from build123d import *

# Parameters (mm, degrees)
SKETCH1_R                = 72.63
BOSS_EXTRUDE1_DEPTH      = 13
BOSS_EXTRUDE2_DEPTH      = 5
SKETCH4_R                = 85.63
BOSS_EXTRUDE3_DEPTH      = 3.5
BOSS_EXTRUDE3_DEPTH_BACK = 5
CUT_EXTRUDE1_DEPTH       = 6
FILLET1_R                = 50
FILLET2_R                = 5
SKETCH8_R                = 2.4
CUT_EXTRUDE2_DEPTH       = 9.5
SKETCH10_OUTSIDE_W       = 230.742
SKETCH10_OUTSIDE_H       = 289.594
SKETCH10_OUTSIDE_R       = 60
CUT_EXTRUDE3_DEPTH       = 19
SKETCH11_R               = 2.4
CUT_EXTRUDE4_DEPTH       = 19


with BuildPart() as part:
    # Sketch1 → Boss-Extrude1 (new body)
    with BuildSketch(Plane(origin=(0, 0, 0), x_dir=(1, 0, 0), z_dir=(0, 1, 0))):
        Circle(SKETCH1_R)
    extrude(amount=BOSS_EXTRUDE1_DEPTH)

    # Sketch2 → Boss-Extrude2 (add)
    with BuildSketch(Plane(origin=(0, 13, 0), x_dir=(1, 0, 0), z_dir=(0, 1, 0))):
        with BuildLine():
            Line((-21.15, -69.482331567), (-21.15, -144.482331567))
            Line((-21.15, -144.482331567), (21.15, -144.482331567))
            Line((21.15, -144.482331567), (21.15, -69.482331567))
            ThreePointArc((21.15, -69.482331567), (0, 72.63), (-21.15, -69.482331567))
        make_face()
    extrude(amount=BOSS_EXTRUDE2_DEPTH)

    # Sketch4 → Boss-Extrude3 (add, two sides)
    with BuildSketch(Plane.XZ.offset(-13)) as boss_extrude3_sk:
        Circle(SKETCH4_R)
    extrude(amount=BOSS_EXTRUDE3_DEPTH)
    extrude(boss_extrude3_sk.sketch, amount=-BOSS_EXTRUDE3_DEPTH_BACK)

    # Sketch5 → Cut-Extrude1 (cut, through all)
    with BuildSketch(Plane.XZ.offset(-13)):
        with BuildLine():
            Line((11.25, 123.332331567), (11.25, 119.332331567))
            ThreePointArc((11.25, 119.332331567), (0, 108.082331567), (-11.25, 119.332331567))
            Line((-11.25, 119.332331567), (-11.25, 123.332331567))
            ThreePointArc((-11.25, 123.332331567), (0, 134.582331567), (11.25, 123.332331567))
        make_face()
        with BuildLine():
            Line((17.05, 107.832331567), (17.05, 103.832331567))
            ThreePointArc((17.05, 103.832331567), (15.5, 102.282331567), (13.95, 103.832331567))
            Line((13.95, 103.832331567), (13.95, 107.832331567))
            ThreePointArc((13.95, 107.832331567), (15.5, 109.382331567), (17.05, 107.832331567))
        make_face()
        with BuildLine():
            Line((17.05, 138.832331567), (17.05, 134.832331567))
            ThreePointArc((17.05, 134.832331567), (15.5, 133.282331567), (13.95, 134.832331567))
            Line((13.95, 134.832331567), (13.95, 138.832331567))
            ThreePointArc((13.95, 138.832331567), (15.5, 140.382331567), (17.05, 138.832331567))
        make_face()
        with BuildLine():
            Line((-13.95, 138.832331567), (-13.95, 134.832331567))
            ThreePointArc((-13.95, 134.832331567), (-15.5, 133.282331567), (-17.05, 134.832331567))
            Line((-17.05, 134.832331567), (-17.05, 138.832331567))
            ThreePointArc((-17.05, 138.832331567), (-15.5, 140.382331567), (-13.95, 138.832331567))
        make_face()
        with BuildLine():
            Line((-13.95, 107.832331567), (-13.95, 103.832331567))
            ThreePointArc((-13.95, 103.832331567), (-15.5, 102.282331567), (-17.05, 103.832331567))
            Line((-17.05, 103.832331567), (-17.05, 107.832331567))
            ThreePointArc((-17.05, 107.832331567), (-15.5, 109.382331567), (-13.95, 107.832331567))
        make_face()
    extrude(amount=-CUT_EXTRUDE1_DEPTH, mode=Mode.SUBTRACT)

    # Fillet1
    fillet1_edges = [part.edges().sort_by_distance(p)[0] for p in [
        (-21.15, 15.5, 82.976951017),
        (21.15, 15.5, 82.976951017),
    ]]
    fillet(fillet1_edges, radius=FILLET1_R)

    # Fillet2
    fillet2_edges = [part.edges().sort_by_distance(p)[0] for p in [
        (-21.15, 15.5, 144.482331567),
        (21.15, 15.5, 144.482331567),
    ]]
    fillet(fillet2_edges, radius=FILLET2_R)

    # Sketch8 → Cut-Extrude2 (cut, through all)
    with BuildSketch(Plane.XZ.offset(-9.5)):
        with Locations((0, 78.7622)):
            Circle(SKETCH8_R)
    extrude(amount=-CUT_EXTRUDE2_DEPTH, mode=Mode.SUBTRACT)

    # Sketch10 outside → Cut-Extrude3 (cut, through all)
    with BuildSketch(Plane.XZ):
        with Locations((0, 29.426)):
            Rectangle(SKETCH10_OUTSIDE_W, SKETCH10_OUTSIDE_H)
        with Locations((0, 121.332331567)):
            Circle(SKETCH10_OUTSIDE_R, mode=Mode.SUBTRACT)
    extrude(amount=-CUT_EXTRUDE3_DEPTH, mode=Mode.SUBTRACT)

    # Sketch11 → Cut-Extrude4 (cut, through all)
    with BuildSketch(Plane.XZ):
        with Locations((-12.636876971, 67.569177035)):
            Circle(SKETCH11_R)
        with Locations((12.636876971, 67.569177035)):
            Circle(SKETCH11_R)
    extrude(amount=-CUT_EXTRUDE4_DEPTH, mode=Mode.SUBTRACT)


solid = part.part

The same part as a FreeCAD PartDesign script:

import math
import FreeCAD as App
import Part
import Sketcher


def edges_at(feature, points):
    """Names of the edges that pass closest to the given points."""
    edges = feature.Shape.Edges
    near = lambda p: min(range(len(edges)), key=lambda i: edges[i].distToShape(Part.Vertex(*p))[0])
    return sorted({f"Edge{near(p) + 1}" for p in points})

doc = App.newDocument("Part")
params = doc.addObject("Spreadsheet::Sheet", "Params")
for row, (alias, value) in enumerate([
    ("sketch1_diameter", "145.26 mm"),
    ("pad1_length", "13 mm"),
    ("sketch2_height", "75 mm"),
    ("sketch2_radius", "72.63 mm"),
    ("sketch2_width", "42.3 mm"),
    ("pad2_length", "5 mm"),
    ("sketch3_diameter", "171.26 mm"),
    ("pad3_length", "3.5 mm"),
    ("pad3_length2", "5 mm"),
    ("sketch4_height", "4 mm"),
    ("sketch4_radius", "11.25 mm"),
    ("sketch4_radius2", "1.55 mm"),
    ("fillet_radius", "50 mm"),
    ("fillet2_radius", "5 mm"),
    ("sketch5_diameter", "4.8 mm"),
    ("sketch6_radius", "60 mm"),
    ("sketch7_diameter", "4.8 mm"),
], start=1):
    params.set(f"A{row}", alias)
    params.set(f"B{row}", "=" + value)
    params.setAlias(f"B{row}", alias)

body = doc.addObject("PartDesign::Body", "Body")

sketch1 = body.newObject("Sketcher::SketchObject", "Sketch")
sketch1.AttachmentSupport = (doc.getObject("XZ_Plane"), [""])
sketch1.MapMode = "FlatFace"
sketch1.addGeometry(Part.Circle(App.Vector(0, 0, 0), App.Vector(0, 0, 1), 73), False)
sketch1.addConstraint([
    Sketcher.Constraint("Coincident", 0, 3, -1, 1),
    Sketcher.Constraint("Diameter", 0, 145.26),
])
sketch1.setExpression("Constraints[1]", "Params.sketch1_diameter")
pad1 = body.newObject("PartDesign::Pad", "Pad")
pad1.Profile = sketch1
pad1.setExpression("Length", "Params.pad1_length")
pad1.Reversed = True

sketch2 = body.newObject("Sketcher::SketchObject", "Sketch001")
sketch2.AttachmentSupport = (doc.getObject("XZ_Plane"), [""])
sketch2.MapMode = "FlatFace"
sketch2.AttachmentOffset = App.Placement(App.Vector(0, 0, -13), App.Rotation())
sketch2.addGeometry([
    Part.LineSegment(App.Vector(-21, 69, 0), App.Vector(-21, 144, 0)),
    Part.LineSegment(App.Vector(-21, 144, 0), App.Vector(21, 144, 0)),
    Part.LineSegment(App.Vector(21, 144, 0), App.Vector(21, 69, 0)),
    Part.ArcOfCircle(Part.Circle(App.Vector(0, 0, 0), App.Vector(0, 0, 1), 73), math.radians(107), math.radians(433)),
], False)
sketch2.addConstraint([
    Sketcher.Constraint("Coincident", 0, 2, 1, 1),
    Sketcher.Constraint("Coincident", 1, 2, 2, 1),
    Sketcher.Constraint("Coincident", 2, 2, 3, 2),
    Sketcher.Constraint("Coincident", 3, 1, 0, 1),
    Sketcher.Constraint("Vertical", 0),
    Sketcher.Constraint("Horizontal", 1),
    Sketcher.Constraint("Vertical", 2),
    Sketcher.Constraint("Coincident", 3, 3, -1, 1),
    Sketcher.Constraint("Horizontal", 2, 2, 3, 1),
    Sketcher.Constraint("DistanceY", 0, 1, 0, 2, 75.0),
    Sketcher.Constraint("Radius", 3, 72.63),
    Sketcher.Constraint("DistanceX", 1, 1, 1, 2, 42.3),
])
sketch2.setExpression("Constraints[9]", "Params.sketch2_height")
sketch2.setExpression("Constraints[10]", "Params.sketch2_radius")
sketch2.setExpression("Constraints[11]", "Params.sketch2_width")
pad2 = body.newObject("PartDesign::Pad", "Pad001")
pad2.Profile = sketch2
pad2.setExpression("Length", "Params.pad2_length")
pad2.Reversed = True

sketch3 = body.newObject("Sketcher::SketchObject", "Sketch002")
sketch3.AttachmentSupport = (doc.getObject("XZ_Plane"), [""])
sketch3.MapMode = "FlatFace"
sketch3.AttachmentOffset = App.Placement(App.Vector(0, 0, -13), App.Rotation())
sketch3.addGeometry(Part.Circle(App.Vector(0, 0, 0), App.Vector(0, 0, 1), 86), False)
sketch3.addConstraint([
    Sketcher.Constraint("Coincident", 0, 3, -1, 1),
    Sketcher.Constraint("Diameter", 0, 171.26),
])
sketch3.setExpression("Constraints[1]", "Params.sketch3_diameter")
pad3 = body.newObject("PartDesign::Pad", "Pad002")
pad3.Profile = sketch3
pad3.Type = "TwoLengths"
pad3.setExpression("Length", "Params.pad3_length")
pad3.setExpression("Length2", "Params.pad3_length2")

sketch4 = body.newObject("Sketcher::SketchObject", "Sketch003")
sketch4.AttachmentSupport = (doc.getObject("XZ_Plane"), [""])
sketch4.MapMode = "FlatFace"
sketch4.AttachmentOffset = App.Placement(App.Vector(0, 0, -13), App.Rotation())
sketch4.addGeometry([
    Part.LineSegment(App.Vector(11.2, 119.3, 0), App.Vector(11.2, 123.3, 0)),
    Part.ArcOfCircle(Part.Circle(App.Vector(0, 123.3, 0), App.Vector(0, 0, 1), 11.2), math.radians(0), math.radians(180)),
    Part.LineSegment(App.Vector(-11.2, 123.3, 0), App.Vector(-11.2, 119.3, 0)),
    Part.ArcOfCircle(Part.Circle(App.Vector(0, 119.3, 0), App.Vector(0, 0, 1), 11.2), math.radians(180), math.radians(360)),
    Part.LineSegment(App.Vector(17.1, 103.8, 0), App.Vector(17.1, 107.8, 0)),
    Part.ArcOfCircle(Part.Circle(App.Vector(15.5, 107.8, 0), App.Vector(0, 0, 1), 1.6), math.radians(0), math.radians(180)),
    Part.LineSegment(App.Vector(13.9, 107.8, 0), App.Vector(13.9, 103.8, 0)),
    Part.ArcOfCircle(Part.Circle(App.Vector(15.5, 103.8, 0), App.Vector(0, 0, 1), 1.6), math.radians(180), math.radians(360)),
    Part.LineSegment(App.Vector(17.1, 134.8, 0), App.Vector(17.1, 138.8, 0)),
    Part.ArcOfCircle(Part.Circle(App.Vector(15.5, 138.8, 0), App.Vector(0, 0, 1), 1.6), math.radians(0), math.radians(180)),
    Part.LineSegment(App.Vector(13.9, 138.8, 0), App.Vector(13.9, 134.8, 0)),
    Part.ArcOfCircle(Part.Circle(App.Vector(15.5, 134.8, 0), App.Vector(0, 0, 1), 1.6), math.radians(180), math.radians(360)),
    Part.LineSegment(App.Vector(-13.9, 134.8, 0), App.Vector(-13.9, 138.8, 0)),
    Part.ArcOfCircle(Part.Circle(App.Vector(-15.5, 138.8, 0), App.Vector(0, 0, 1), 1.6), math.radians(0), math.radians(180)),
    Part.LineSegment(App.Vector(-17.1, 138.8, 0), App.Vector(-17.1, 134.8, 0)),
    Part.ArcOfCircle(Part.Circle(App.Vector(-15.5, 134.8, 0), App.Vector(0, 0, 1), 1.6), math.radians(180), math.radians(360)),
    Part.LineSegment(App.Vector(-13.9, 103.8, 0), App.Vector(-13.9, 107.8, 0)),
    Part.ArcOfCircle(Part.Circle(App.Vector(-15.5, 107.8, 0), App.Vector(0, 0, 1), 1.6), math.radians(0), math.radians(180)),
    Part.LineSegment(App.Vector(-17.1, 107.8, 0), App.Vector(-17.1, 103.8, 0)),
    Part.ArcOfCircle(Part.Circle(App.Vector(-15.5, 103.8, 0), App.Vector(0, 0, 1), 1.6), math.radians(180), math.radians(360)),
], False)
sketch4.addConstraint([
    Sketcher.Constraint("Tangent", 0, 2, 1, 1),
    Sketcher.Constraint("Tangent", 1, 2, 2, 1),
    Sketcher.Constraint("Tangent", 2, 2, 3, 1),
    Sketcher.Constraint("Tangent", 3, 2, 0, 1),
    Sketcher.Constraint("Tangent", 4, 2, 5, 1),
    Sketcher.Constraint("Tangent", 5, 2, 6, 1),
    Sketcher.Constraint("Tangent", 6, 2, 7, 1),
    Sketcher.Constraint("Tangent", 7, 2, 4, 1),
    Sketcher.Constraint("Tangent", 8, 2, 9, 1),
    Sketcher.Constraint("Tangent", 9, 2, 10, 1),
    Sketcher.Constraint("Tangent", 10, 2, 11, 1),
    Sketcher.Constraint("Tangent", 11, 2, 8, 1),
    Sketcher.Constraint("Tangent", 12, 2, 13, 1),
    Sketcher.Constraint("Tangent", 13, 2, 14, 1),
    Sketcher.Constraint("Tangent", 14, 2, 15, 1),
    Sketcher.Constraint("Tangent", 15, 2, 12, 1),
    Sketcher.Constraint("Tangent", 16, 2, 17, 1),
    Sketcher.Constraint("Tangent", 17, 2, 18, 1),
    Sketcher.Constraint("Tangent", 18, 2, 19, 1),
    Sketcher.Constraint("Tangent", 19, 2, 16, 1),
    Sketcher.Constraint("Vertical", 0),
    Sketcher.Constraint("Vertical", 2),
    Sketcher.Constraint("Vertical", 4),
    Sketcher.Constraint("Vertical", 6),
    Sketcher.Constraint("Vertical", 8),
    Sketcher.Constraint("Vertical", 10),
    Sketcher.Constraint("Vertical", 12),
    Sketcher.Constraint("Vertical", 14),
    Sketcher.Constraint("Vertical", 16),
    Sketcher.Constraint("Vertical", 18),
    Sketcher.Constraint("Equal", 7, 9),
    Sketcher.Constraint("Equal", 11, 13),
    Sketcher.Constraint("Equal", 15, 17),
    Sketcher.Constraint("Symmetric", 9, 3, 13, 3, -2),
    Sketcher.Constraint("Symmetric", 5, 3, 17, 3, -2),
    Sketcher.Constraint("PointOnObject", 1, 3, -2),
    Sketcher.Constraint("Horizontal", 11, 3, 15, 3),
    Sketcher.Constraint("Horizontal", 7, 3, 19, 3),
    Sketcher.Constraint("Vertical", 7, 3, 9, 3),
    Sketcher.Constraint("Equal", 2, 4),
    Sketcher.Constraint("Equal", 6, 8),
    Sketcher.Constraint("DistanceY", 0, 1, 0, 2, 4.0),
    Sketcher.Constraint("Radius", 1, 11.25),
    Sketcher.Constraint("Radius", 5, 1.55),
    Sketcher.Constraint("DistanceY", 5, 3, 9, 3, 31.0),
    Sketcher.Constraint("DistanceX", 13, 3, 9, 3, 31.0),
    Sketcher.Constraint("DistanceY", 5, 3, 3, 3, 11.5),
    Sketcher.Constraint("DistanceY", -1, 1, 1, 3, 123.332332),
])
sketch4.setExpression("Constraints[41]", "Params.sketch4_height")
sketch4.setExpression("Constraints[42]", "Params.sketch4_radius")
sketch4.setExpression("Constraints[43]", "Params.sketch4_radius2")
pocket1 = body.newObject("PartDesign::Pocket", "Pocket")
pocket1.Profile = sketch4
pocket1.Type = "ThroughAll"
doc.recompute()

fillet = body.newObject("PartDesign::Fillet", "Fillet")
fillet.Base = (pocket1, edges_at(pocket1, [(-21.15, 15.5, 82.977), (21.15, 15.5, 82.977)]))
fillet.setExpression("Radius", "Params.fillet_radius")
doc.recompute()

fillet2 = body.newObject("PartDesign::Fillet", "Fillet001")
fillet2.Base = (fillet, edges_at(fillet, [(-21.15, 15.5, 144.482), (21.15, 15.5, 144.482)]))
fillet2.setExpression("Radius", "Params.fillet2_radius")

sketch5 = body.newObject("Sketcher::SketchObject", "Sketch004")
sketch5.AttachmentSupport = (doc.getObject("XZ_Plane"), [""])
sketch5.MapMode = "FlatFace"
sketch5.AttachmentOffset = App.Placement(App.Vector(0, 0, -9.5), App.Rotation())
sketch5.addGeometry(Part.Circle(App.Vector(0, 78.8, 0), App.Vector(0, 0, 1), 2.4), False)
sketch5.addConstraint([
    Sketcher.Constraint("PointOnObject", 0, 3, -2),
    Sketcher.Constraint("Diameter", 0, 4.8),
    Sketcher.Constraint("DistanceY", -1, 1, 0, 3, 78.7622),
])
sketch5.setExpression("Constraints[1]", "Params.sketch5_diameter")
pocket2 = body.newObject("PartDesign::Pocket", "Pocket001")
pocket2.Profile = sketch5
pocket2.Type = "ThroughAll"

sketch6 = body.newObject("Sketcher::SketchObject", "Sketch005")
sketch6.AttachmentSupport = (doc.getObject("XZ_Plane"), [""])
sketch6.MapMode = "FlatFace"
sketch6.addGeometry([
    Part.LineSegment(App.Vector(-115, 174, 0), App.Vector(-115, -115, 0)),
    Part.LineSegment(App.Vector(-115, -115, 0), App.Vector(115, -115, 0)),
    Part.LineSegment(App.Vector(115, -115, 0), App.Vector(115, 174, 0)),
    Part.LineSegment(App.Vector(115, 174, 0), App.Vector(28, 174, 0)),
    Part.ArcOfCircle(Part.Circle(App.Vector(0, 121, 0), App.Vector(0, 0, 1), 60), math.radians(118), math.radians(422)),
    Part.LineSegment(App.Vector(-28, 174, 0), App.Vector(-115, 174, 0)),
], False)
sketch6.addConstraint([
    Sketcher.Constraint("Coincident", 0, 2, 1, 1),
    Sketcher.Constraint("Coincident", 1, 2, 2, 1),
    Sketcher.Constraint("Coincident", 2, 2, 3, 1),
    Sketcher.Constraint("Coincident", 3, 2, 4, 2),
    Sketcher.Constraint("Coincident", 4, 1, 5, 1),
    Sketcher.Constraint("Coincident", 5, 2, 0, 1),
    Sketcher.Constraint("Vertical", 0),
    Sketcher.Constraint("Horizontal", 1),
    Sketcher.Constraint("Vertical", 2),
    Sketcher.Constraint("Horizontal", 3),
    Sketcher.Constraint("Horizontal", 5),
    Sketcher.Constraint("Symmetric", 3, 2, 4, 1, -2),
    Sketcher.Constraint("Equal", 3, 5),
    Sketcher.Constraint("Radius", 4, 60.0),
    Sketcher.Constraint("DistanceX", 1, 1, 1, 2, 230.742),
    Sketcher.Constraint("DistanceY", 0, 2, 0, 1, 289.594),
    Sketcher.Constraint("DistanceY", 0, 2, -1, 1, 115.371),
    Sketcher.Constraint("DistanceX", 3, 2, 3, 1, 87.041207),
])
sketch6.setExpression("Constraints[13]", "Params.sketch6_radius")
pocket3 = body.newObject("PartDesign::Pocket", "Pocket002")
pocket3.Profile = sketch6
pocket3.Type = "ThroughAll"

sketch7 = body.newObject("Sketcher::SketchObject", "Sketch006")
sketch7.AttachmentSupport = (doc.getObject("XZ_Plane"), [""])
sketch7.MapMode = "FlatFace"
sketch7.addGeometry([
    Part.Circle(App.Vector(-12.6, 67.6, 0), App.Vector(0, 0, 1), 2.4),
    Part.Circle(App.Vector(12.6, 67.6, 0), App.Vector(0, 0, 1), 2.4),
], False)
sketch7.addConstraint([
    Sketcher.Constraint("Equal", 0, 1),
    Sketcher.Constraint("Symmetric", 0, 3, 1, 3, -2),
    Sketcher.Constraint("Diameter", 0, 4.8),
    Sketcher.Constraint("DistanceX", 0, 3, -1, 1, 12.636877),
    Sketcher.Constraint("DistanceY", -1, 1, 0, 3, 67.569177),
])
sketch7.setExpression("Constraints[2]", "Params.sketch7_diameter")
pocket4 = body.newObject("PartDesign::Pocket", "Pocket003")
pocket4.Profile = sketch7
pocket4.Type = "ThroughAll"

doc.recompute()
